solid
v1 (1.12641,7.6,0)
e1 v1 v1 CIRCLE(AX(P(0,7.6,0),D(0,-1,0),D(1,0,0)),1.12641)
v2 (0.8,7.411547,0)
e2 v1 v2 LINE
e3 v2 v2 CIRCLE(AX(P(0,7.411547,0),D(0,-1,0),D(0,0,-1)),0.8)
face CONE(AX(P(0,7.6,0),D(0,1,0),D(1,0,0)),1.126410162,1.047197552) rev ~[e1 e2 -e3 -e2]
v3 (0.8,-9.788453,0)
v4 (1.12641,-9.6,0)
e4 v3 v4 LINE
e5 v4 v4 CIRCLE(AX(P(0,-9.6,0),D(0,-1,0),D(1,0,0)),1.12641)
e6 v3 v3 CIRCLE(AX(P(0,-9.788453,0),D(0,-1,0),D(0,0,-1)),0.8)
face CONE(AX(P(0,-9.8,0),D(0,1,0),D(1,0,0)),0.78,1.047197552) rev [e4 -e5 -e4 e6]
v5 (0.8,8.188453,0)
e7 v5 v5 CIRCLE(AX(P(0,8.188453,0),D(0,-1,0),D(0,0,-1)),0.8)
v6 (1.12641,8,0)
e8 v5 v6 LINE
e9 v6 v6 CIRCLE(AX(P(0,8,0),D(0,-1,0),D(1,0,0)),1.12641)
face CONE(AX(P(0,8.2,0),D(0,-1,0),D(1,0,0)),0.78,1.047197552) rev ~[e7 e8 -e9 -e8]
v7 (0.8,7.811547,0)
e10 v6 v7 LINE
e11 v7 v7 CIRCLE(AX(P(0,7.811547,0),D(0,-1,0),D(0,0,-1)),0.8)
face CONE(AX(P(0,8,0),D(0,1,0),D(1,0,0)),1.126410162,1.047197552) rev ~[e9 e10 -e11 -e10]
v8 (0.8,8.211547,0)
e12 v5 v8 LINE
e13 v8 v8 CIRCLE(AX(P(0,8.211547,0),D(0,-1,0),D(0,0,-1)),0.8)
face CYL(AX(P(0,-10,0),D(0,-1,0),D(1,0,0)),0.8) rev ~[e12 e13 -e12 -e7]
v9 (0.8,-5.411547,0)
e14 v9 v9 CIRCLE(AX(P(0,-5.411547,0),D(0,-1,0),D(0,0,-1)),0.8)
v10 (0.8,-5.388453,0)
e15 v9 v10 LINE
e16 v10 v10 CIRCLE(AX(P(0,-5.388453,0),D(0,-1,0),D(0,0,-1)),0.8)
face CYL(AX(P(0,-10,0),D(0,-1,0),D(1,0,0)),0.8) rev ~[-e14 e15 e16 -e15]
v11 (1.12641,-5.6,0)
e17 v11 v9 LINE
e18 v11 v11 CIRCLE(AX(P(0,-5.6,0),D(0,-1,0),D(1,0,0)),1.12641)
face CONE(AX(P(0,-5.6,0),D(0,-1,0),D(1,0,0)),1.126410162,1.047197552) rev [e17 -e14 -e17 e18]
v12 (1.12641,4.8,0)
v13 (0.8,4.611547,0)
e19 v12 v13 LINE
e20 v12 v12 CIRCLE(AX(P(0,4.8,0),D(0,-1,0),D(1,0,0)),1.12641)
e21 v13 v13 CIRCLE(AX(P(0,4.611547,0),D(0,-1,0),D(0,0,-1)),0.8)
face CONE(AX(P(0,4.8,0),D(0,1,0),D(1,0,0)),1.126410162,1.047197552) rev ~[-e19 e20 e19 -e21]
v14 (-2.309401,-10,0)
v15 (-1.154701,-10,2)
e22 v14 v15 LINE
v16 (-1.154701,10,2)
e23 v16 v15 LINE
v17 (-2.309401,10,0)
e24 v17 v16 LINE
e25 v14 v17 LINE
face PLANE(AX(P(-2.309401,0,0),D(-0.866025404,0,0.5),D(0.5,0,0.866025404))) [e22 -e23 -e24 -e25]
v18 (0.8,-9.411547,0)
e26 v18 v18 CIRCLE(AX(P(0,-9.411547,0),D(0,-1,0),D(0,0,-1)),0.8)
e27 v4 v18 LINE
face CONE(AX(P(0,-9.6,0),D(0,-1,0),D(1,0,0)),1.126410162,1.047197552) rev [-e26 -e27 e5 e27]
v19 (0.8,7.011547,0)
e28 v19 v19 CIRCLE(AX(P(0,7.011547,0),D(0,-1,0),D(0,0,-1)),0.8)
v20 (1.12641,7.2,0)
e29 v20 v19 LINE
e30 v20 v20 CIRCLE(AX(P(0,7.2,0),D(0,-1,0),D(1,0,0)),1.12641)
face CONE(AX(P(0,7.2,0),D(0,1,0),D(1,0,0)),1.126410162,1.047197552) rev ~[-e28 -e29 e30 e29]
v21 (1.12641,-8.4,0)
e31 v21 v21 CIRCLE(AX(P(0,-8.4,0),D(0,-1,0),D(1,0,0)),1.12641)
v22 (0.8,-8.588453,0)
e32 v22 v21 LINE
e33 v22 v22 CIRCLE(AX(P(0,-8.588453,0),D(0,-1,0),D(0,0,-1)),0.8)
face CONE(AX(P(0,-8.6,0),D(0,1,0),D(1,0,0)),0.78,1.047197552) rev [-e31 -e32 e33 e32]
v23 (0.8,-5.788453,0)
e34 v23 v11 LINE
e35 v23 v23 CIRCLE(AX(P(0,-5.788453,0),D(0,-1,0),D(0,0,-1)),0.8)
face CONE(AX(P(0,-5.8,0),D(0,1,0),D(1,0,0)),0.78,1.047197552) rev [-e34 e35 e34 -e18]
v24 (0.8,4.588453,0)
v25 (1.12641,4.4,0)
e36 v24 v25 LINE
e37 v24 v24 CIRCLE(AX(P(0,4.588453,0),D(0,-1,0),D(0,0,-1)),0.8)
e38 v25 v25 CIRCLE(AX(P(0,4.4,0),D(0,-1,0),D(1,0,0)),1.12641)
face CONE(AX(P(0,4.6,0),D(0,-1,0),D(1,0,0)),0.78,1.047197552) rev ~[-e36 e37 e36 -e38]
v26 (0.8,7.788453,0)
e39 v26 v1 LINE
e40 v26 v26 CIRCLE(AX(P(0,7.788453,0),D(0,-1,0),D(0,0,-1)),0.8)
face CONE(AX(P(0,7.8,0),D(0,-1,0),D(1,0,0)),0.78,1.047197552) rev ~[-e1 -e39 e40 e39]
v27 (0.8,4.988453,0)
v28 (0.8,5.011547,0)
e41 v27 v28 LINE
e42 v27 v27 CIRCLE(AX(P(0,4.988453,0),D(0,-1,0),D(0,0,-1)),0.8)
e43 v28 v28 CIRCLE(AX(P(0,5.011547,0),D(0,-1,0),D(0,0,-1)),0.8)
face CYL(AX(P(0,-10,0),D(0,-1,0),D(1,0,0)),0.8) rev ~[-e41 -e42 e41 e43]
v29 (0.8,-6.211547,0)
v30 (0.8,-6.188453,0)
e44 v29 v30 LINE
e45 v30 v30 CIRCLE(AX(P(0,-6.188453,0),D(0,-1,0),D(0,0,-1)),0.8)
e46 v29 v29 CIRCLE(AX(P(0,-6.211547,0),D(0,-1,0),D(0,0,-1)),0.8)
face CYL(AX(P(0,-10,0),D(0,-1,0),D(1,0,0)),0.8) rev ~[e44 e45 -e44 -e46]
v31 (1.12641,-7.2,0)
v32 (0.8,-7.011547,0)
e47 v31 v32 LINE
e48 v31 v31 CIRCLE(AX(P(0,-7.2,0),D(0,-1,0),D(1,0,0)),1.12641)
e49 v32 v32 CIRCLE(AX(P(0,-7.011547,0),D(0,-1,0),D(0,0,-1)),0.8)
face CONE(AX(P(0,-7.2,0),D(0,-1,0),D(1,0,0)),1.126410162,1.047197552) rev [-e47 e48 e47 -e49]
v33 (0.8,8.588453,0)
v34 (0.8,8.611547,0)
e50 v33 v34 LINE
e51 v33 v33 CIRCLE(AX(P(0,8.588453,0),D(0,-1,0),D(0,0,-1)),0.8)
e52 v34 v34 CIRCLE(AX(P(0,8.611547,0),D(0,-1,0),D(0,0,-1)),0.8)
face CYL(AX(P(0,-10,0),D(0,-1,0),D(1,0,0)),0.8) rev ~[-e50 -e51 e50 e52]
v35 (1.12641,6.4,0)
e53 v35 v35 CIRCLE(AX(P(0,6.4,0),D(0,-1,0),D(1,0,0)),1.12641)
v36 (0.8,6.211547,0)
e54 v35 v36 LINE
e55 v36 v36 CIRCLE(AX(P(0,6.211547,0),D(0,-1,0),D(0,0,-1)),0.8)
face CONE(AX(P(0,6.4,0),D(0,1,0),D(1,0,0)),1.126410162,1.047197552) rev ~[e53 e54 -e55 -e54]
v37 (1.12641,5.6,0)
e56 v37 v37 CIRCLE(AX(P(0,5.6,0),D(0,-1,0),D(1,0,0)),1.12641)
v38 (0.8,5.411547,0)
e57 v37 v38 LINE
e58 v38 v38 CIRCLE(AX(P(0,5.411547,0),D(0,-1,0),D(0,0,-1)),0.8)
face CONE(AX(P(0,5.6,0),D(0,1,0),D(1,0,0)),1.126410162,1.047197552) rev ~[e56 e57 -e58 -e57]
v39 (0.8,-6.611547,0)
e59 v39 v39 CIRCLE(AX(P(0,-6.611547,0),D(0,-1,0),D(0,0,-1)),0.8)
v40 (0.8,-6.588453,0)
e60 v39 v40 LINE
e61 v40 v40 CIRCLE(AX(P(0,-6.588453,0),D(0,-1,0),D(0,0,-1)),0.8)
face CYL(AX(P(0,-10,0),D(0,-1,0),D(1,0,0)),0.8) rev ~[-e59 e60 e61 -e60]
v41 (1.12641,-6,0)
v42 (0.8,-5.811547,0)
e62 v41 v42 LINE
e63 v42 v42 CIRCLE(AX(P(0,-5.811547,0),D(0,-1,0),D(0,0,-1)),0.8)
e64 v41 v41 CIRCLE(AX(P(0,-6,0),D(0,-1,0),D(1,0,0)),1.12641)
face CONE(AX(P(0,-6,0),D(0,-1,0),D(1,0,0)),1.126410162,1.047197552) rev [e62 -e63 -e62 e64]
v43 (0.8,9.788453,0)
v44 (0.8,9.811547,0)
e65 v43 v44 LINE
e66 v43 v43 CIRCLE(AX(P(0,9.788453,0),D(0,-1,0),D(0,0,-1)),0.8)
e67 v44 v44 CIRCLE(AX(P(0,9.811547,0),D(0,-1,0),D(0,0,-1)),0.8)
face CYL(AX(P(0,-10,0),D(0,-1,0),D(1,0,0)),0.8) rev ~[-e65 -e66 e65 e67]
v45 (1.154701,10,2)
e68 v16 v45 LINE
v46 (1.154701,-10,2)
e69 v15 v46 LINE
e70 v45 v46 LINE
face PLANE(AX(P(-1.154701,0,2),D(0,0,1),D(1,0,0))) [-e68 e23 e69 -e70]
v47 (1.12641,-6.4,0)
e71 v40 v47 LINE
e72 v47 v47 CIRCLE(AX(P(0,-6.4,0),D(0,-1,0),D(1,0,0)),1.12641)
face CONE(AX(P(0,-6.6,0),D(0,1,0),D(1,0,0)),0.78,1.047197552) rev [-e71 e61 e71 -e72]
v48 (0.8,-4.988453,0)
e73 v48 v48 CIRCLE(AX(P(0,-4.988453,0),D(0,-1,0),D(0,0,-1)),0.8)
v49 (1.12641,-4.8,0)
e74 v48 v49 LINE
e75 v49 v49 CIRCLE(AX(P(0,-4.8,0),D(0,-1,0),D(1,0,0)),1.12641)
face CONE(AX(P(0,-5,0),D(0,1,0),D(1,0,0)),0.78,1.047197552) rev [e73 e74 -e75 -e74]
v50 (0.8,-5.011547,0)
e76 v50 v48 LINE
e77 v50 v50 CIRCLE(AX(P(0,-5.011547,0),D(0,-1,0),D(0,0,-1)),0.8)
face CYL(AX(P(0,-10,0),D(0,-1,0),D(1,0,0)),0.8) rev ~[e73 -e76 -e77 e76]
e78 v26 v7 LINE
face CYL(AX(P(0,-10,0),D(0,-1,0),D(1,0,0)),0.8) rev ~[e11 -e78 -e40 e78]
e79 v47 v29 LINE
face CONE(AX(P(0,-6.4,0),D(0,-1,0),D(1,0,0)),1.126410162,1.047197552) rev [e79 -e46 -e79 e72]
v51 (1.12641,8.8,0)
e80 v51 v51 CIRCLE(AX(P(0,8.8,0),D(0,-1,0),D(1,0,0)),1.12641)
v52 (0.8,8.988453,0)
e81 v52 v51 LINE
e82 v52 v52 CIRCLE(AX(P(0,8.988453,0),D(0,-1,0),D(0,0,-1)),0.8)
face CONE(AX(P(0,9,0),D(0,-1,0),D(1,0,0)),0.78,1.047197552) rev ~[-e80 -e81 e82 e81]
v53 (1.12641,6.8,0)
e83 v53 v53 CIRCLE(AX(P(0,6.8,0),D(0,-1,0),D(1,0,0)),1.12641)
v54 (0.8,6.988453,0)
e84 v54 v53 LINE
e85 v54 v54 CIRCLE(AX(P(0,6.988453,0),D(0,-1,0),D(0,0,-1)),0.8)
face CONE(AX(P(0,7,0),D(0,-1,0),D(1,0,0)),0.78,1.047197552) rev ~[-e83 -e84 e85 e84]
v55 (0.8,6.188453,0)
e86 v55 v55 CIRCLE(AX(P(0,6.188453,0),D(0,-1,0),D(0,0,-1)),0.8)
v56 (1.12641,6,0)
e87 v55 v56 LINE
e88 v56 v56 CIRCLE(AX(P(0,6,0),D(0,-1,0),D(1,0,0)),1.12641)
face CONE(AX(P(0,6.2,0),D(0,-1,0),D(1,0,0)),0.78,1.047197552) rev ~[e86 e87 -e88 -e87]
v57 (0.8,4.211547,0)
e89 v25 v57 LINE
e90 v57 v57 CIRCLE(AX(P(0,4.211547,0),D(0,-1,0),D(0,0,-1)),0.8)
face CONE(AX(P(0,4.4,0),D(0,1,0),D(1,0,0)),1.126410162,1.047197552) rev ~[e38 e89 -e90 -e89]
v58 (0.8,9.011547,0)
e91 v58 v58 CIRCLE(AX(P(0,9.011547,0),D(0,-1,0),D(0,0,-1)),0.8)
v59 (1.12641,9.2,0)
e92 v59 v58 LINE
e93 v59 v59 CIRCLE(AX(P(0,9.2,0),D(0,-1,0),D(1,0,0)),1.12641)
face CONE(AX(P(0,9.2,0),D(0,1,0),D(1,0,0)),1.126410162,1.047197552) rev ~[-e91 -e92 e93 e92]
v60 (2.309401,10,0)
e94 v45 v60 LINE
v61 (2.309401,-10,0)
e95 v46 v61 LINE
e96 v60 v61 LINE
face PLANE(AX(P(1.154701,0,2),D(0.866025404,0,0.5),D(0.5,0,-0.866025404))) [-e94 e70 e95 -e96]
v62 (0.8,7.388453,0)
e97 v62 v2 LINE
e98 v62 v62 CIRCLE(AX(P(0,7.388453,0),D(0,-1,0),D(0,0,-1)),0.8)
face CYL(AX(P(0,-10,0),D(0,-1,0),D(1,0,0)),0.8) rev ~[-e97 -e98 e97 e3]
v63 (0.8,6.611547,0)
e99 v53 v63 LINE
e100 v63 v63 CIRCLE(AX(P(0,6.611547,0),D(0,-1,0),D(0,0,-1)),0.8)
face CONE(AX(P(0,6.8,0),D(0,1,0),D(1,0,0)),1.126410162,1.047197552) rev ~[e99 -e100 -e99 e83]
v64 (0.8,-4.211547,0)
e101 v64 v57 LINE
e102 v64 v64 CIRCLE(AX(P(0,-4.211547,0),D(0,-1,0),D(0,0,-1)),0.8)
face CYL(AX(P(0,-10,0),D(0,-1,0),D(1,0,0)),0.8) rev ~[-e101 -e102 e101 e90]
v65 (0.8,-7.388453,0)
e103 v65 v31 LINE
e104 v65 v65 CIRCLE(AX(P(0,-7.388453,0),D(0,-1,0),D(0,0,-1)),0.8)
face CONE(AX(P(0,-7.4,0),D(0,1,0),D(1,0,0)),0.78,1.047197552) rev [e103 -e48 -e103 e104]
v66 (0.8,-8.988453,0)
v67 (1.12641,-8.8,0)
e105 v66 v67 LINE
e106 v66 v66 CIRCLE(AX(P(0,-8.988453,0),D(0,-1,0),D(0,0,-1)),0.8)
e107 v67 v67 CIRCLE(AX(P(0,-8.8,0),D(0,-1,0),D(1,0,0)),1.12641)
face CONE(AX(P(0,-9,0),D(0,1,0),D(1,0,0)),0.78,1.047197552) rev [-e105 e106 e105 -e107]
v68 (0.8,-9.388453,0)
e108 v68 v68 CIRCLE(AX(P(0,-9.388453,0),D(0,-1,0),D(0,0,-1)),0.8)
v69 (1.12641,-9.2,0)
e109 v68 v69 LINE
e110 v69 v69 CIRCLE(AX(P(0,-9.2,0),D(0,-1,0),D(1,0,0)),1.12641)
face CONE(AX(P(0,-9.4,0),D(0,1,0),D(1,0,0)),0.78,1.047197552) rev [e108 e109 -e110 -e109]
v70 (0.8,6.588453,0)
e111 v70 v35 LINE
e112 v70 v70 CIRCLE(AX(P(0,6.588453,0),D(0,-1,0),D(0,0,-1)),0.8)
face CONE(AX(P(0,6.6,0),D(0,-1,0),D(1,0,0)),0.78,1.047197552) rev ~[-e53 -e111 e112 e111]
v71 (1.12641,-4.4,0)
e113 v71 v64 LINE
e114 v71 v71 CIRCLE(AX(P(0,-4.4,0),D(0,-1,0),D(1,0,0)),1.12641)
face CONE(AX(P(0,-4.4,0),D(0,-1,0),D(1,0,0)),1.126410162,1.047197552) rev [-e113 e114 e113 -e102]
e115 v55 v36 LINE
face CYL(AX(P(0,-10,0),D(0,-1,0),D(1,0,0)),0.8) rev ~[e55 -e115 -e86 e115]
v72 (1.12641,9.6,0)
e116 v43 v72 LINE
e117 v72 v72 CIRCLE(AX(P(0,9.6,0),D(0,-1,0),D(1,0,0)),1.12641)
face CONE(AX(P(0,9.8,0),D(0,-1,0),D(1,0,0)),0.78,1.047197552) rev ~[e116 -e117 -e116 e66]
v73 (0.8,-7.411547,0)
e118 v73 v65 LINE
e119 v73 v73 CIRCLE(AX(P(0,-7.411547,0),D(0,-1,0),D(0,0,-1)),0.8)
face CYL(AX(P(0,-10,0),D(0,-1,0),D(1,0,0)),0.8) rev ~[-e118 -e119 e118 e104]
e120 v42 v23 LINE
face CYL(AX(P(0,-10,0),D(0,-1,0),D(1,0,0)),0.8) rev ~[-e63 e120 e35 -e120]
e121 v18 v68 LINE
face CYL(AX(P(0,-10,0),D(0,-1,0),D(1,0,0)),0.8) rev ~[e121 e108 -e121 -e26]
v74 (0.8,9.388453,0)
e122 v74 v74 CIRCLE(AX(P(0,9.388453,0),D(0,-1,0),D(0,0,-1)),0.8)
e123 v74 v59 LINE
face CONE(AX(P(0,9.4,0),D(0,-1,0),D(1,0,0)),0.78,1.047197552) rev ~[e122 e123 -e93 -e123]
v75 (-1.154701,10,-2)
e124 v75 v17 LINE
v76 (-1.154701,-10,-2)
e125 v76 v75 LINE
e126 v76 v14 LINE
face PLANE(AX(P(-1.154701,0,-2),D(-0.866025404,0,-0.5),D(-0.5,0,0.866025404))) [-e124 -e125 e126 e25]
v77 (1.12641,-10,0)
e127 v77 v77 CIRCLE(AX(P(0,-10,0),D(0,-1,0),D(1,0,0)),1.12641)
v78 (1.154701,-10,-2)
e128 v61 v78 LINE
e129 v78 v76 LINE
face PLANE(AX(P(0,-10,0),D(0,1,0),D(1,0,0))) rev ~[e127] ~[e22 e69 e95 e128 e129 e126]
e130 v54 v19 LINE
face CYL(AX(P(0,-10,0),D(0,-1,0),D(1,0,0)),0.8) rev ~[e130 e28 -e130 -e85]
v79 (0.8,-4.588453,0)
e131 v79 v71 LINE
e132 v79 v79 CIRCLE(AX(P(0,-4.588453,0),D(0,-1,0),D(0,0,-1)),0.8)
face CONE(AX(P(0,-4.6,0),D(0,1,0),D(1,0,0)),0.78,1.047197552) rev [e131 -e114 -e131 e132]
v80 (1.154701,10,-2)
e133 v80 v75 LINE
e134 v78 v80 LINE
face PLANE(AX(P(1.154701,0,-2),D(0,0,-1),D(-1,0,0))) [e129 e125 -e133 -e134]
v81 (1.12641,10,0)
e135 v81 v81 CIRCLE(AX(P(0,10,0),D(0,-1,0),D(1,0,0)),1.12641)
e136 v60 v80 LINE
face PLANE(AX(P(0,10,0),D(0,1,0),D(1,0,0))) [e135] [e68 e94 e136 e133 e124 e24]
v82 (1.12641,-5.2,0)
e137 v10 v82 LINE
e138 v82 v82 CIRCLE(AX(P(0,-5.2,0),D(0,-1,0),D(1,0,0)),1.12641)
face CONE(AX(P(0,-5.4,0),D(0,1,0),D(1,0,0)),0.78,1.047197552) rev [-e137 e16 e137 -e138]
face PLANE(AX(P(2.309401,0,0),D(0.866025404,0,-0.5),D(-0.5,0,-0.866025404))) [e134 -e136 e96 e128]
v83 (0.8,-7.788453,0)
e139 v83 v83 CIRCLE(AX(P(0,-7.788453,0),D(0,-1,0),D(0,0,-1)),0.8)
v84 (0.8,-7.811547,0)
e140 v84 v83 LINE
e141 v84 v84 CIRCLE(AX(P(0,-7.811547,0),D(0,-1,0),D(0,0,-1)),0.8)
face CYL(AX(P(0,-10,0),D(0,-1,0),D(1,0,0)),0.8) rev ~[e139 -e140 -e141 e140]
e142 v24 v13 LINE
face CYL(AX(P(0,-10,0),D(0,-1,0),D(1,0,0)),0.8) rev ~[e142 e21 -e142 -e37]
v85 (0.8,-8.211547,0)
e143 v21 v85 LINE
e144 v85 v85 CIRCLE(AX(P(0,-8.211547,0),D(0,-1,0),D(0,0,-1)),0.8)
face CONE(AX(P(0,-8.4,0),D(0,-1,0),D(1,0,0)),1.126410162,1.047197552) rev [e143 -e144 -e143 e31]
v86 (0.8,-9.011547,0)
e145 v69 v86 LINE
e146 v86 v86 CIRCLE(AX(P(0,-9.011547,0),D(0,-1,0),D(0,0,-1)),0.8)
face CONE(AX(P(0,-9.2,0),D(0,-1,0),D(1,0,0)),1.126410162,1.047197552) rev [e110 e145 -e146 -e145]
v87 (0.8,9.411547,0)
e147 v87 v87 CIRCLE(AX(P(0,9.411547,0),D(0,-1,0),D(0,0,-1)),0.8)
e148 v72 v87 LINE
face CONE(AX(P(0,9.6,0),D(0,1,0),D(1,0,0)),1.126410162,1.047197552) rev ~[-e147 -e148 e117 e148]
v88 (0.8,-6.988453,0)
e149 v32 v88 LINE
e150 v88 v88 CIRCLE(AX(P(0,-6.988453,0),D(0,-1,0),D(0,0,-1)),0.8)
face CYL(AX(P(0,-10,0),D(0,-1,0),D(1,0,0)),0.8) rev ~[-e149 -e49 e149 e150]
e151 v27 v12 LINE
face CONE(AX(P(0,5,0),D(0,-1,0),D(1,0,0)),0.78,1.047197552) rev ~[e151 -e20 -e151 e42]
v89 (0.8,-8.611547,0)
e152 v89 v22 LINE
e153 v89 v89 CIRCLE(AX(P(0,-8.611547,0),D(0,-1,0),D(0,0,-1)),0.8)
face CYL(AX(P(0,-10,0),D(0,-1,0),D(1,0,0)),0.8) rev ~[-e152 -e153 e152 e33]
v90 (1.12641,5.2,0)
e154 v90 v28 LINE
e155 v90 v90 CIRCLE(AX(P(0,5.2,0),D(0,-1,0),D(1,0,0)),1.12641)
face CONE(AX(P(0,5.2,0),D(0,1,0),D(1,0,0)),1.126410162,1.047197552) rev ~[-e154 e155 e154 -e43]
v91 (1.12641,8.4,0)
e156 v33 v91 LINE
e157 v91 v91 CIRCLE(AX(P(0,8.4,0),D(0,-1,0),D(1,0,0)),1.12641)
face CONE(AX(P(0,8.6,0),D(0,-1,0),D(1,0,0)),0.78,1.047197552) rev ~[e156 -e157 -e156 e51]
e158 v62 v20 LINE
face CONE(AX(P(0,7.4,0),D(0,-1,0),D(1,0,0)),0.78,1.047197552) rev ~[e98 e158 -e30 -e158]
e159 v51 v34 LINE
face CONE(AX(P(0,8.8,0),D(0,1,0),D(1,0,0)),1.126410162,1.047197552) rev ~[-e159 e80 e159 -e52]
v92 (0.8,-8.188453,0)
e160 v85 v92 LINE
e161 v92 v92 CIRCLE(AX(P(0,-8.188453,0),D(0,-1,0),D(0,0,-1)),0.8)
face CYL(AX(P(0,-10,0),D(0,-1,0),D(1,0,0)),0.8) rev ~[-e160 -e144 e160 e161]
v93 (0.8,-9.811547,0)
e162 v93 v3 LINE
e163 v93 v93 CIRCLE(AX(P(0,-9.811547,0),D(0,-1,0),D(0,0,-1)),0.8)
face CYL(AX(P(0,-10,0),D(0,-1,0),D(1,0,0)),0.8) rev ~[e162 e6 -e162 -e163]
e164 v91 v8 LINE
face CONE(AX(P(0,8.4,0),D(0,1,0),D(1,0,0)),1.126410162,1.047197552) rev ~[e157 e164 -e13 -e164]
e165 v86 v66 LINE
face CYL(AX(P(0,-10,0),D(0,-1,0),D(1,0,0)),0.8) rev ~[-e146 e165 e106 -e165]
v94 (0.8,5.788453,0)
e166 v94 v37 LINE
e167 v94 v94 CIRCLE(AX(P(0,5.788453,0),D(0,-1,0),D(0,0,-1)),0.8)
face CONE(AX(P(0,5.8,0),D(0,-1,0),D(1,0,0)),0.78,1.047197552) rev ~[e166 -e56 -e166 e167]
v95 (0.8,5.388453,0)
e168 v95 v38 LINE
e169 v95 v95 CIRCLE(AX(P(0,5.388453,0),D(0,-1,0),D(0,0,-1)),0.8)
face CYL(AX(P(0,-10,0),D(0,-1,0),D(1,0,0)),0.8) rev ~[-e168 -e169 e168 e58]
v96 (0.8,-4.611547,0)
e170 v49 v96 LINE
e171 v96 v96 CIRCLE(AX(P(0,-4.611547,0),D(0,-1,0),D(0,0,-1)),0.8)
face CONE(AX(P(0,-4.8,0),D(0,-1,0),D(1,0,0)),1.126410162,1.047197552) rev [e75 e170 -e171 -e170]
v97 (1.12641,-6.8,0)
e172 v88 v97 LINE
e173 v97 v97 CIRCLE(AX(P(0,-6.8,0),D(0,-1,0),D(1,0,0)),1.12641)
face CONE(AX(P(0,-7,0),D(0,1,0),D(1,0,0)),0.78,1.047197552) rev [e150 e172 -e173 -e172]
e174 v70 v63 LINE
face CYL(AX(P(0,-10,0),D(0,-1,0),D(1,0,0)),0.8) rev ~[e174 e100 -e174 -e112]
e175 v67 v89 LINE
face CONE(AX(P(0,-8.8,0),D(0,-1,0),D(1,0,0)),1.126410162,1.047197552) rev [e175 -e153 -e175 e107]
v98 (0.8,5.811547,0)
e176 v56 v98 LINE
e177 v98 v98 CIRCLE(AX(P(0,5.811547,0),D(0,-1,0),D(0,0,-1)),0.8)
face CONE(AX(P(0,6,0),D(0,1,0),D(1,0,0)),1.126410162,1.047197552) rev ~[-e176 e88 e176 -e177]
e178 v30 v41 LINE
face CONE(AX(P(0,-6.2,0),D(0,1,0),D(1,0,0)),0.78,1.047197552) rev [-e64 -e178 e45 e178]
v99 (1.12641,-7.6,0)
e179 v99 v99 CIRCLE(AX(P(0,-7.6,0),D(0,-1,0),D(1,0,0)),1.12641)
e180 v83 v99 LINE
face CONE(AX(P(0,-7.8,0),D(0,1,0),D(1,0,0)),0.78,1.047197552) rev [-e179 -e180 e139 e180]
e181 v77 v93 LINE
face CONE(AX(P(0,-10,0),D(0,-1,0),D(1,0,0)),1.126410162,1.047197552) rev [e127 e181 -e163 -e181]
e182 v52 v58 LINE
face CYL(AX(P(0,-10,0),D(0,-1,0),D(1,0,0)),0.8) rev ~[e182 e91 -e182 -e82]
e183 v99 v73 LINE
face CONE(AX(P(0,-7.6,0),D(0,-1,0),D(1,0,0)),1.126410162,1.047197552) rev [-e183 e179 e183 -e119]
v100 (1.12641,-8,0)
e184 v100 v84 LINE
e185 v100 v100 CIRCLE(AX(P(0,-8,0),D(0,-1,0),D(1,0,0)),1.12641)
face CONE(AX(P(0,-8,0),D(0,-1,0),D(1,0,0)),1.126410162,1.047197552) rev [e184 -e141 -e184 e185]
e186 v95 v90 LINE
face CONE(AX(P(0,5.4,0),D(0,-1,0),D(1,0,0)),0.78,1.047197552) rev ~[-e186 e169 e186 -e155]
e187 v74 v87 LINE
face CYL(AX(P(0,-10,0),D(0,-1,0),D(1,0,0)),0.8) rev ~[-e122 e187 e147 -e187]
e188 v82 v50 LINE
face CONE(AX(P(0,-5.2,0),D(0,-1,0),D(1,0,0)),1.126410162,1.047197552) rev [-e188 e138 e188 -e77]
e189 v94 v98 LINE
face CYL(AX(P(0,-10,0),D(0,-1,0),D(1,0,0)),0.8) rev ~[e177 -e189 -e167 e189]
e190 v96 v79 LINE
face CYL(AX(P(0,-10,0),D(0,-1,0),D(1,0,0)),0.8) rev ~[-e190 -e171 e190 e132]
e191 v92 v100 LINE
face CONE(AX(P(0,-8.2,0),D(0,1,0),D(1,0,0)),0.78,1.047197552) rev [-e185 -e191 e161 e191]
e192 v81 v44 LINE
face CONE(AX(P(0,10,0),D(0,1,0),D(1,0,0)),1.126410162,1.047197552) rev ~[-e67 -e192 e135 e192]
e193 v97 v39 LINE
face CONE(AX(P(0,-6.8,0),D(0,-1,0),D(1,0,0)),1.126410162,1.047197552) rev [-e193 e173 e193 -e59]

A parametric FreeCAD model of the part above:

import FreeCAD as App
import Part
import Sketcher

V = App.Vector
Q = App.Units.Quantity

doc = App.newDocument("Part")
body = doc.addObject("PartDesign::Body", "Body")

# Sketch on XZ plane
sketch1 = doc.addObject("Sketcher::SketchObject", "Sketch")
body.addObject(sketch1)
sketch1.AttachmentSupport = (doc.XZ_Plane, [""])
sketch1.MapMode = "FlatFace"
sketch1.addGeometry(Part.LineSegment(V(2.309401, 0, 0), V(1.154701, -2, 0)), False)
sketch1.addGeometry(Part.LineSegment(V(1.154701, -2, 0), V(-1.154701, -2, 0)), False)
sketch1.addGeometry(Part.LineSegment(V(-1.154701, -2, 0), V(-2.309401, 0, 0)), False)
sketch1.addGeometry(Part.LineSegment(V(-2.309401, 0, 0), V(-1.154701, 2, 0)), False)
sketch1.addGeometry(Part.LineSegment(V(-1.154701, 2, 0), V(1.154701, 2, 0)), False)
sketch1.addGeometry(Part.LineSegment(V(1.154701, 2, 0), V(2.309401, 0, 0)), False)
sketch1.addConstraint(Sketcher.Constraint("Coincident", 0, 2, 1, 1))
sketch1.addConstraint(Sketcher.Constraint("Coincident", 1, 2, 2, 1))
sketch1.addConstraint(Sketcher.Constraint("Coincident", 2, 2, 3, 1))
sketch1.addConstraint(Sketcher.Constraint("Coincident", 3, 2, 4, 1))
sketch1.addConstraint(Sketcher.Constraint("Coincident", 4, 2, 5, 1))
sketch1.addConstraint(Sketcher.Constraint("Coincident", 5, 2, 0, 1))
sketch1.addConstraint(Sketcher.Constraint("Horizontal", 1))
sketch1.addConstraint(Sketcher.Constraint("Horizontal", 4))
sketch1.addConstraint(Sketcher.Constraint("Symmetric", 0, 2, 3, 2, -1, 1))
sketch1.addConstraint(Sketcher.Constraint("Symmetric", 2, 2, 5, 2, -1, 1))
sketch1.addConstraint(Sketcher.Constraint("PointOnObject", 2, 2, -1))
sketch1.addConstraint(Sketcher.Constraint("Parallel", 2, 5))
sketch1.addConstraint(Sketcher.Constraint("Vertical", 1, 2, 3, 2))
sketch1.addConstraint(Sketcher.Constraint("Angle", 0, Q("-120 deg")))
sketch1.addConstraint(Sketcher.Constraint("DistanceY", 0, 2, -1, 1, Q("2 mm")))
sketch1.addConstraint(Sketcher.Constraint("DistanceX", 1, 2, 1, 1, Q("2.309401 mm")))
pad1 = doc.addObject("PartDesign::Pad", "Pad")
body.addObject(pad1)
pad1.Profile = sketch1
pad1.Length = 20
pad1.Midplane = True

# Sketch on XZ plane
sketch2 = doc.addObject("Sketcher::SketchObject", "Sketch001")
body.addObject(sketch2)
sketch2.AttachmentSupport = (doc.XZ_Plane, [""])
sketch2.MapMode = "FlatFace"
sketch2.AttachmentOffset = App.Placement(V(0, 0, 10), App.Rotation())
sketch2.addGeometry(Part.Circle(V(0, 0, 0), V(0, 0, 1), 0.8), False)
sketch2.addConstraint(Sketcher.Constraint("Coincident", 0, 3, -1, 1))
sketch2.addConstraint(Sketcher.Constraint("Diameter", 0, Q("1.6 mm")))
pocket1 = doc.addObject("PartDesign::Pocket", "Pocket")
body.addObject(pocket1)
pocket1.Profile = sketch2
pocket1.Length = 20

# Sketch on XY plane
sketch3 = doc.addObject("Sketcher::SketchObject", "Sketch002")
body.addObject(sketch3)
sketch3.AttachmentSupport = (doc.XY_Plane, [""])
sketch3.MapMode = "FlatFace"
sketch3.addGeometry(Part.LineSegment(V(0.38, -9.8, 0), V(0.38, -10.2, 0)), False)
sketch3.addGeometry(Part.LineSegment(V(0.38, -10.2, 0), V(0.78, -10.2, 0)), False)
sketch3.addGeometry(Part.LineSegment(V(0.78, -10.2, 0), V(1.12641, -10, 0)), False)
sketch3.addGeometry(Part.LineSegment(V(1.12641, -10, 0), V(0.78, -9.8, 0)), False)
sketch3.addGeometry(Part.LineSegment(V(0.78, -9.8, 0), V(0.38, -9.8, 0)), False)
sketch3.addConstraint(Sketcher.Constraint("Coincident", 0, 2, 1, 1))
sketch3.addConstraint(Sketcher.Constraint("Coincident", 1, 2, 2, 1))
sketch3.addConstraint(Sketcher.Constraint("Coincident", 2, 2, 3, 1))
sketch3.addConstraint(Sketcher.Constraint("Coincident", 3, 2, 4, 1))
sketch3.addConstraint(Sketcher.Constraint("Coincident", 4, 2, 0, 1))
sketch3.addConstraint(Sketcher.Constraint("Vertical", 0))
sketch3.addConstraint(Sketcher.Constraint("Horizontal", 1))
sketch3.addConstraint(Sketcher.Constraint("Horizontal", 4))
sketch3.addConstraint(Sketcher.Constraint("Vertical", 1, 2, 3, 2))
sketch3.addConstraint(Sketcher.Constraint("Equal", 4, 0))
sketch3.addConstraint(Sketcher.Constraint("Equal", 2, 3))
sketch3.addConstraint(Sketcher.Constraint("Angle", 2, Q("30 deg")))
sketch3.addConstraint(Sketcher.Constraint("DistanceX", 1, 1, 1, 2, Q("0.4 mm")))
sketch3.addConstraint(Sketcher.Constraint("DistanceY", 2, 2, -1, 1, Q("10 mm")))
sketch3.addConstraint(Sketcher.Constraint("DistanceX", -1, 1, 0, 2, Q("0.38 mm")))
groove = doc.addObject("PartDesign::Groove", "Groove")
body.addObject(groove)
groove.Profile = sketch3
groove.ReferenceAxis = (sketch3, ["V_Axis"])
groove.Angle = 360
doc.recompute()

linearpattern = doc.addObject("PartDesign::LinearPattern", "LinearPattern")
body.addObject(linearpattern)
linearpattern.Originals = [groove]
linearpattern.Direction = (doc.Y_Axis, [""])
linearpattern.Mode = "offset"
linearpattern.Offset = 0.4
linearpattern.Occurrences = 15
body.Tip = linearpattern
doc.recompute()

mirrored = doc.addObject("PartDesign::Mirrored", "Mirrored")
body.addObject(mirrored)
mirrored.Originals = [groove]
mirrored.MirrorPlane = (doc.XZ_Plane, [""])
body.Tip = mirrored

# Sketch on XY plane
sketch4 = doc.addObject("Sketcher::SketchObject", "Sketch003")
body.addObject(sketch4)
sketch4.AttachmentSupport = (doc.XY_Plane, [""])
sketch4.MapMode = "FlatFace"
sketch4.addGeometry(Part.LineSegment(V(0.38, 9.8, 0), V(0.38, 9.4, 0)), False)
sketch4.addGeometry(Part.LineSegment(V(0.38, 9.4, 0), V(0.78, 9.4, 0)), False)
sketch4.addGeometry(Part.LineSegment(V(0.78, 9.4, 0), V(1.12641, 9.6, 0)), False)
sketch4.addGeometry(Part.LineSegment(V(1.12641, 9.6, 0), V(0.78, 9.8, 0)), False)
sketch4.addGeometry(Part.LineSegment(V(0.78, 9.8, 0), V(0.38, 9.8, 0)), False)
sketch4.addConstraint(Sketcher.Constraint("Coincident", 0, 2, 1, 1))
sketch4.addConstraint(Sketcher.Constraint("Coincident", 1, 2, 2, 1))
sketch4.addConstraint(Sketcher.Constraint("Coincident", 2, 2, 3, 1))
sketch4.addConstraint(Sketcher.Constraint("Coincident", 3, 2, 4, 1))
sketch4.addConstraint(Sketcher.Constraint("Coincident", 4, 2, 0, 1))
sketch4.addConstraint(Sketcher.Constraint("Vertical", 0))
sketch4.addConstraint(Sketcher.Constraint("Horizontal", 1))
sketch4.addConstraint(Sketcher.Constraint("Horizontal", 4))
sketch4.addConstraint(Sketcher.Constraint("Vertical", 1, 2, 3, 2))
sketch4.addConstraint(Sketcher.Constraint("Equal", 4, 0))
sketch4.addConstraint(Sketcher.Constraint("Equal", 2, 3))
sketch4.addConstraint(Sketcher.Constraint("Angle", 2, Q("30 deg")))
sketch4.addConstraint(Sketcher.Constraint("DistanceX", 1, 1, 1, 2, Q("0.4 mm")))
sketch4.addConstraint(Sketcher.Constraint("DistanceY", -1, 1, 0, 2, Q("9.4 mm")))
sketch4.addConstraint(Sketcher.Constraint("DistanceX", -1, 1, 0, 2, Q("0.38 mm")))
groove2 = doc.addObject("PartDesign::Groove", "Groove001")
body.addObject(groove2)
groove2.Profile = sketch4
groove2.ReferenceAxis = (sketch4, ["V_Axis"])
groove2.Angle = 360

# Sketch on XY plane
sketch5 = doc.addObject("Sketcher::SketchObject", "Sketch004")
body.addObject(sketch5)
sketch5.AttachmentSupport = (doc.XY_Plane, [""])
sketch5.MapMode = "FlatFace"
sketch5.addGeometry(Part.LineSegment(V(0.38, 9.4, 0), V(0.38, 9, 0)), False)
sketch5.addGeometry(Part.LineSegment(V(0.38, 9, 0), V(0.78, 9, 0)), False)
sketch5.addGeometry(Part.LineSegment(V(0.78, 9, 0), V(1.12641, 9.2, 0)), False)
sketch5.addGeometry(Part.LineSegment(V(1.12641, 9.2, 0), V(0.78, 9.4, 0)), False)
sketch5.addGeometry(Part.LineSegment(V(0.78, 9.4, 0), V(0.38, 9.4, 0)), False)
sketch5.addConstraint(Sketcher.Constraint("Coincident", 0, 2, 1, 1))
sketch5.addConstraint(Sketcher.Constraint("Coincident", 1, 2, 2, 1))
sketch5.addConstraint(Sketcher.Constraint("Coincident", 2, 2, 3, 1))
sketch5.addConstraint(Sketcher.Constraint("Coincident", 3, 2, 4, 1))
sketch5.addConstraint(Sketcher.Constraint("Coincident", 4, 2, 0, 1))
sketch5.addConstraint(Sketcher.Constraint("Vertical", 0))
sketch5.addConstraint(Sketcher.Constraint("Horizontal", 1))
sketch5.addConstraint(Sketcher.Constraint("Horizontal", 4))
sketch5.addConstraint(Sketcher.Constraint("Vertical", 1, 2, 3, 2))
sketch5.addConstraint(Sketcher.Constraint("Equal", 4, 0))
sketch5.addConstraint(Sketcher.Constraint("Equal", 2, 3))
sketch5.addConstraint(Sketcher.Constraint("Angle", 2, Q("30 deg")))
sketch5.addConstraint(Sketcher.Constraint("DistanceX", 1, 1, 1, 2, Q("0.4 mm")))
sketch5.addConstraint(Sketcher.Constraint("DistanceY", -1, 1, 0, 2, Q("9 mm")))
sketch5.addConstraint(Sketcher.Constraint("DistanceX", -1, 1, 0, 2, Q("0.38 mm")))
groove3 = doc.addObject("PartDesign::Groove", "Groove002")
body.addObject(groove3)
groove3.Profile = sketch5
groove3.ReferenceAxis = (sketch5, ["V_Axis"])
groove3.Angle = 360

# Sketch on XY plane
sketch6 = doc.addObject("Sketcher::SketchObject", "Sketch005")
body.addObject(sketch6)
sketch6.AttachmentSupport = (doc.XY_Plane, [""])
sketch6.MapMode = "FlatFace"
sketch6.addGeometry(Part.LineSegment(V(0.38, 9, 0), V(0.38, 8.6, 0)), False)
sketch6.addGeometry(Part.LineSegment(V(0.38, 8.6, 0), V(0.78, 8.6, 0)), False)
sketch6.addGeometry(Part.LineSegment(V(0.78, 8.6, 0), V(1.12641, 8.8, 0)), False)
sketch6.addGeometry(Part.LineSegment(V(1.12641, 8.8, 0), V(0.78, 9, 0)), False)
sketch6.addGeometry(Part.LineSegment(V(0.78, 9, 0), V(0.38, 9, 0)), False)
sketch6.addConstraint(Sketcher.Constraint("Coincident", 0, 2, 1, 1))
sketch6.addConstraint(Sketcher.Constraint("Coincident", 1, 2, 2, 1))
sketch6.addConstraint(Sketcher.Constraint("Coincident", 2, 2, 3, 1))
sketch6.addConstraint(Sketcher.Constraint("Coincident", 3, 2, 4, 1))
sketch6.addConstraint(Sketcher.Constraint("Coincident", 4, 2, 0, 1))
sketch6.addConstraint(Sketcher.Constraint("Vertical", 0))
sketch6.addConstraint(Sketcher.Constraint("Horizontal", 1))
sketch6.addConstraint(Sketcher.Constraint("Horizontal", 4))
sketch6.addConstraint(Sketcher.Constraint("Vertical", 1, 2, 3, 2))
sketch6.addConstraint(Sketcher.Constraint("Equal", 4, 0))
sketch6.addConstraint(Sketcher.Constraint("Equal", 2, 3))
sketch6.addConstraint(Sketcher.Constraint("Angle", 2, Q("30 deg")))
sketch6.addConstraint(Sketcher.Constraint("DistanceX", 1, 1, 1, 2, Q("0.4 mm")))
sketch6.addConstraint(Sketcher.Constraint("DistanceY", -1, 1, 3, 2, Q("9 mm")))
sketch6.addConstraint(Sketcher.Constraint("DistanceX", -1, 1, 0, 2, Q("0.38 mm")))
groove4 = doc.addObject("PartDesign::Groove", "Groove003")
body.addObject(groove4)
groove4.Profile = sketch6
groove4.ReferenceAxis = (sketch6, ["V_Axis"])
groove4.Angle = 360

# Sketch on XY plane
sketch7 = doc.addObject("Sketcher::SketchObject", "Sketch006")
body.addObject(sketch7)
sketch7.AttachmentSupport = (doc.XY_Plane, [""])
sketch7.MapMode = "FlatFace"
sketch7.addGeometry(Part.LineSegment(V(0.38, 8.6, 0), V(0.38, 8.2, 0)), False)
sketch7.addGeometry(Part.LineSegment(V(0.38, 8.2, 0), V(0.78, 8.2, 0)), False)
sketch7.addGeometry(Part.LineSegment(V(0.78, 8.2, 0), V(1.12641, 8.4, 0)), False)
sketch7.addGeometry(Part.LineSegment(V(1.12641, 8.4, 0), V(0.78, 8.6, 0)), False)
sketch7.addGeometry(Part.LineSegment(V(0.78, 8.6, 0), V(0.38, 8.6, 0)), False)
sketch7.addConstraint(Sketcher.Constraint("Coincident", 0, 2, 1, 1))
sketch7.addConstraint(Sketcher.Constraint("Coincident", 1, 2, 2, 1))
sketch7.addConstraint(Sketcher.Constraint("Coincident", 2, 2, 3, 1))
sketch7.addConstraint(Sketcher.Constraint("Coincident", 3, 2, 4, 1))
sketch7.addConstraint(Sketcher.Constraint("Coincident", 4, 2, 0, 1))
sketch7.addConstraint(Sketcher.Constraint("Vertical", 0))
sketch7.addConstraint(Sketcher.Constraint("Horizontal", 1))
sketch7.addConstraint(Sketcher.Constraint("Horizontal", 4))
sketch7.addConstraint(Sketcher.Constraint("Vertical", 1, 2, 3, 2))
sketch7.addConstraint(Sketcher.Constraint("Equal", 4, 0))
sketch7.addConstraint(Sketcher.Constraint("Equal", 2, 3))
sketch7.addConstraint(Sketcher.Constraint("Angle", 2, Q("30 deg")))
sketch7.addConstraint(Sketcher.Constraint("DistanceX", 1, 1, 1, 2, Q("0.4 mm")))
sketch7.addConstraint(Sketcher.Constraint("DistanceY", -1, 1, 0, 2, Q("8.2 mm")))
sketch7.addConstraint(Sketcher.Constraint("DistanceX", -1, 1, 0, 2, Q("0.38 mm")))
groove5 = doc.addObject("PartDesign::Groove", "Groove004")
body.addObject(groove5)
groove5.Profile = sketch7
groove5.ReferenceAxis = (sketch7, ["V_Axis"])
groove5.Angle = 360

# Sketch on XY plane
sketch8 = doc.addObject("Sketcher::SketchObject", "Sketch007")
body.addObject(sketch8)
sketch8.AttachmentSupport = (doc.XY_Plane, [""])
sketch8.MapMode = "FlatFace"
sketch8.addGeometry(Part.LineSegment(V(0.38, 8.2, 0), V(0.38, 7.8, 0)), False)
sketch8.addGeometry(Part.LineSegment(V(0.38, 7.8, 0), V(0.78, 7.8, 0)), False)
sketch8.addGeometry(Part.LineSegment(V(0.78, 7.8, 0), V(1.12641, 8, 0)), False)
sketch8.addGeometry(Part.LineSegment(V(1.12641, 8, 0), V(0.78, 8.2, 0)), False)
sketch8.addGeometry(Part.LineSegment(V(0.78, 8.2, 0), V(0.38, 8.2, 0)), False)
sketch8.addConstraint(Sketcher.Constraint("Coincident", 0, 2, 1, 1))
sketch8.addConstraint(Sketcher.Constraint("Coincident", 1, 2, 2, 1))
sketch8.addConstraint(Sketcher.Constraint("Coincident", 2, 2, 3, 1))
sketch8.addConstraint(Sketcher.Constraint("Coincident", 3, 2, 4, 1))
sketch8.addConstraint(Sketcher.Constraint("Coincident", 4, 2, 0, 1))
sketch8.addConstraint(Sketcher.Constraint("Vertical", 0))
sketch8.addConstraint(Sketcher.Constraint("Horizontal", 1))
sketch8.addConstraint(Sketcher.Constraint("Horizontal", 4))
sketch8.addConstraint(Sketcher.Constraint("Vertical", 1, 2, 3, 2))
sketch8.addConstraint(Sketcher.Constraint("Equal", 4, 0))
sketch8.addConstraint(Sketcher.Constraint("Equal", 2, 3))
sketch8.addConstraint(Sketcher.Constraint("Angle", 2, Q("30 deg")))
sketch8.addConstraint(Sketcher.Constraint("DistanceX", 1, 1, 1, 2, Q("0.4 mm")))
sketch8.addConstraint(Sketcher.Constraint("DistanceY", -1, 1, 2, 2, Q("8 mm")))
sketch8.addConstraint(Sketcher.Constraint("DistanceX", -1, 1, 0, 2, Q("0.38 mm")))
groove6 = doc.addObject("PartDesign::Groove", "Groove005")
body.addObject(groove6)
groove6.Profile = sketch8
groove6.ReferenceAxis = (sketch8, ["V_Axis"])
groove6.Angle = 360

# Sketch on XY plane
sketch9 = doc.addObject("Sketcher::SketchObject", "Sketch008")
body.addObject(sketch9)
sketch9.AttachmentSupport = (doc.XY_Plane, [""])
sketch9.MapMode = "FlatFace"
sketch9.addGeometry(Part.LineSegment(V(0.38, 7.8, 0), V(0.38, 7.4, 0)), False)
sketch9.addGeometry(Part.LineSegment(V(0.38, 7.4, 0), V(0.78, 7.4, 0)), False)
sketch9.addGeometry(Part.LineSegment(V(0.78, 7.4, 0), V(1.12641, 7.6, 0)), False)
sketch9.addGeometry(Part.LineSegment(V(1.12641, 7.6, 0), V(0.78, 7.8, 0)), False)
sketch9.addGeometry(Part.LineSegment(V(0.78, 7.8, 0), V(0.38, 7.8, 0)), False)
sketch9.addConstraint(Sketcher.Constraint("Coincident", 0, 2, 1, 1))
sketch9.addConstraint(Sketcher.Constraint("Coincident", 1, 2, 2, 1))
sketch9.addConstraint(Sketcher.Constraint("Coincident", 2, 2, 3, 1))
sketch9.addConstraint(Sketcher.Constraint("Coincident", 3, 2, 4, 1))
sketch9.addConstraint(Sketcher.Constraint("Coincident", 4, 2, 0, 1))
sketch9.addConstraint(Sketcher.Constraint("Vertical", 0))
sketch9.addConstraint(Sketcher.Constraint("Horizontal", 1))
sketch9.addConstraint(Sketcher.Constraint("Horizontal", 4))
sketch9.addConstraint(Sketcher.Constraint("Vertical", 1, 2, 3, 2))
sketch9.addConstraint(Sketcher.Constraint("Equal", 4, 0))
sketch9.addConstraint(Sketcher.Constraint("Equal", 2, 3))
sketch9.addConstraint(Sketcher.Constraint("Angle", 2, Q("30 deg")))
sketch9.addConstraint(Sketcher.Constraint("DistanceX", 1, 1, 1, 2, Q("0.4 mm")))
sketch9.addConstraint(Sketcher.Constraint("DistanceY", -1, 1, 0, 2, Q("7.4 mm")))
sketch9.addConstraint(Sketcher.Constraint("DistanceX", -1, 1, 0, 2, Q("0.38 mm")))
groove7 = doc.addObject("PartDesign::Groove", "Groove006")
body.addObject(groove7)
groove7.Profile = sketch9
groove7.ReferenceAxis = (sketch9, ["V_Axis"])
groove7.Angle = 360

# Sketch on XY plane
sketch10 = doc.addObject("Sketcher::SketchObject", "Sketch009")
body.addObject(sketch10)
sketch10.AttachmentSupport = (doc.XY_Plane, [""])
sketch10.MapMode = "FlatFace"
sketch10.addGeometry(Part.LineSegment(V(0.38, 7.4, 0), V(0.38, 7, 0)), False)
sketch10.addGeometry(Part.LineSegment(V(0.38, 7, 0), V(0.78, 7, 0)), False)
sketch10.addGeometry(Part.LineSegment(V(0.78, 7, 0), V(1.12641, 7.2, 0)), False)
sketch10.addGeometry(Part.LineSegment(V(1.12641, 7.2, 0), V(0.78, 7.4, 0)), False)
sketch10.addGeometry(Part.LineSegment(V(0.78, 7.4, 0), V(0.38, 7.4, 0)), False)
sketch10.addConstraint(Sketcher.Constraint("Coincident", 0, 2, 1, 1))
sketch10.addConstraint(Sketcher.Constraint("Coincident", 1, 2, 2, 1))
sketch10.addConstraint(Sketcher.Constraint("Coincident", 2, 2, 3, 1))
sketch10.addConstraint(Sketcher.Constraint("Coincident", 3, 2, 4, 1))
sketch10.addConstraint(Sketcher.Constraint("Coincident", 4, 2, 0, 1))
sketch10.addConstraint(Sketcher.Constraint("Vertical", 0))
sketch10.addConstraint(Sketcher.Constraint("Horizontal", 1))
sketch10.addConstraint(Sketcher.Constraint("Horizontal", 4))
sketch10.addConstraint(Sketcher.Constraint("Vertical", 1, 2, 3, 2))
sketch10.addConstraint(Sketcher.Constraint("Equal", 4, 0))
sketch10.addConstraint(Sketcher.Constraint("Equal", 2, 3))
sketch10.addConstraint(Sketcher.Constraint("Angle", 2, Q("30 deg")))
sketch10.addConstraint(Sketcher.Constraint("DistanceX", 1, 1, 1, 2, Q("0.4 mm")))
sketch10.addConstraint(Sketcher.Constraint("DistanceY", -1, 1, 0, 2, Q("7 mm")))
sketch10.addConstraint(Sketcher.Constraint("DistanceX", -1, 1, 0, 2, Q("0.38 mm")))
groove8 = doc.addObject("PartDesign::Groove", "Groove007")
body.addObject(groove8)
groove8.Profile = sketch10
groove8.ReferenceAxis = (sketch10, ["V_Axis"])
groove8.Angle = 360

# Sketch on XY plane
sketch11 = doc.addObject("Sketcher::SketchObject", "Sketch010")
body.addObject(sketch11)
sketch11.AttachmentSupport = (doc.XY_Plane, [""])
sketch11.MapMode = "FlatFace"
sketch11.addGeometry(Part.LineSegment(V(0.38, 7, 0), V(0.38, 6.6, 0)), False)
sketch11.addGeometry(Part.LineSegment(V(0.38, 6.6, 0), V(0.78, 6.6, 0)), False)
sketch11.addGeometry(Part.LineSegment(V(0.78, 6.6, 0), V(1.12641, 6.8, 0)), False)
sketch11.addGeometry(Part.LineSegment(V(1.12641, 6.8, 0), V(0.78, 7, 0)), False)
sketch11.addGeometry(Part.LineSegment(V(0.78, 7, 0), V(0.38, 7, 0)), False)
sketch11.addConstraint(Sketcher.Constraint("Coincident", 0, 2, 1, 1))
sketch11.addConstraint(Sketcher.Constraint("Coincident", 1, 2, 2, 1))
sketch11.addConstraint(Sketcher.Constraint("Coincident", 2, 2, 3, 1))
sketch11.addConstraint(Sketcher.Constraint("Coincident", 3, 2, 4, 1))
sketch11.addConstraint(Sketcher.Constraint("Coincident", 4, 2, 0, 1))
sketch11.addConstraint(Sketcher.Constraint("Vertical", 0))
sketch11.addConstraint(Sketcher.Constraint("Horizontal", 1))
sketch11.addConstraint(Sketcher.Constraint("Horizontal", 4))
sketch11.addConstraint(Sketcher.Constraint("Vertical", 1, 2, 3, 2))
sketch11.addConstraint(Sketcher.Constraint("Equal", 4, 0))
sketch11.addConstraint(Sketcher.Constraint("Equal", 2, 3))
sketch11.addConstraint(Sketcher.Constraint("Angle", 2, Q("30 deg")))
sketch11.addConstraint(Sketcher.Constraint("DistanceX", 1, 1, 1, 2, Q("0.4 mm")))
sketch11.addConstraint(Sketcher.Constraint("DistanceY", -1, 1, 3, 2, Q("7 mm")))
sketch11.addConstraint(Sketcher.Constraint("DistanceX", -1, 1, 0, 2, Q("0.38 mm")))
groove9 = doc.addObject("PartDesign::Groove", "Groove008")
body.addObject(groove9)
groove9.Profile = sketch11
groove9.ReferenceAxis = (sketch11, ["V_Axis"])
groove9.Angle = 360

# Sketch on XY plane
sketch12 = doc.addObject("Sketcher::SketchObject", "Sketch011")
body.addObject(sketch12)
sketch12.AttachmentSupport = (doc.XY_Plane, [""])
sketch12.MapMode = "FlatFace"
sketch12.addGeometry(Part.LineSegment(V(0.38, 6.6, 0), V(0.38, 6.2, 0)), False)
sketch12.addGeometry(Part.LineSegment(V(0.38, 6.2, 0), V(0.78, 6.2, 0)), False)
sketch12.addGeometry(Part.LineSegment(V(0.78, 6.2, 0), V(1.12641, 6.4, 0)), False)
sketch12.addGeometry(Part.LineSegment(V(1.12641, 6.4, 0), V(0.78, 6.6, 0)), False)
sketch12.addGeometry(Part.LineSegment(V(0.78, 6.6, 0), V(0.38, 6.6, 0)), False)
sketch12.addConstraint(Sketcher.Constraint("Coincident", 0, 2, 1, 1))
sketch12.addConstraint(Sketcher.Constraint("Coincident", 1, 2, 2, 1))
sketch12.addConstraint(Sketcher.Constraint("Coincident", 2, 2, 3, 1))
sketch12.addConstraint(Sketcher.Constraint("Coincident", 3, 2, 4, 1))
sketch12.addConstraint(Sketcher.Constraint("Coincident", 4, 2, 0, 1))
sketch12.addConstraint(Sketcher.Constraint("Vertical", 0))
sketch12.addConstraint(Sketcher.Constraint("Horizontal", 1))
sketch12.addConstraint(Sketcher.Constraint("Horizontal", 4))
sketch12.addConstraint(Sketcher.Constraint("Vertical", 1, 2, 3, 2))
sketch12.addConstraint(Sketcher.Constraint("Equal", 4, 0))
sketch12.addConstraint(Sketcher.Constraint("Equal", 2, 3))
sketch12.addConstraint(Sketcher.Constraint("Angle", 2, Q("30 deg")))
sketch12.addConstraint(Sketcher.Constraint("DistanceX", 1, 1, 1, 2, Q("0.4 mm")))
sketch12.addConstraint(Sketcher.Constraint("DistanceY", -1, 1, 0, 2, Q("6.2 mm")))
sketch12.addConstraint(Sketcher.Constraint("DistanceX", -1, 1, 0, 2, Q("0.38 mm")))
groove10 = doc.addObject("PartDesign::Groove", "Groove009")
body.addObject(groove10)
groove10.Profile = sketch12
groove10.ReferenceAxis = (sketch12, ["V_Axis"])
groove10.Angle = 360

# Sketch on XY plane
sketch13 = doc.addObject("Sketcher::SketchObject", "Sketch012")
body.addObject(sketch13)
sketch13.AttachmentSupport = (doc.XY_Plane, [""])
sketch13.MapMode = "FlatFace"
sketch13.addGeometry(Part.LineSegment(V(0.38, 6.2, 0), V(0.38, 5.8, 0)), False)
sketch13.addGeometry(Part.LineSegment(V(0.38, 5.8, 0), V(0.78, 5.8, 0)), False)
sketch13.addGeometry(Part.LineSegment(V(0.78, 5.8, 0), V(1.12641, 6, 0)), False)
sketch13.addGeometry(Part.LineSegment(V(1.12641, 6, 0), V(0.78, 6.2, 0)), False)
sketch13.addGeometry(Part.LineSegment(V(0.78, 6.2, 0), V(0.38, 6.2, 0)), False)
sketch13.addConstraint(Sketcher.Constraint("Coincident", 0, 2, 1, 1))
sketch13.addConstraint(Sketcher.Constraint("Coincident", 1, 2, 2, 1))
sketch13.addConstraint(Sketcher.Constraint("Coincident", 2, 2, 3, 1))
sketch13.addConstraint(Sketcher.Constraint("Coincident", 3, 2, 4, 1))
sketch13.addConstraint(Sketcher.Constraint("Coincident", 4, 2, 0, 1))
sketch13.addConstraint(Sketcher.Constraint("Vertical", 0))
sketch13.addConstraint(Sketcher.Constraint("Horizontal", 1))
sketch13.addConstraint(Sketcher.Constraint("Horizontal", 4))
sketch13.addConstraint(Sketcher.Constraint("Vertical", 1, 2, 3, 2))
sketch13.addConstraint(Sketcher.Constraint("Equal", 4, 0))
sketch13.addConstraint(Sketcher.Constraint("Equal", 2, 3))
sketch13.addConstraint(Sketcher.Constraint("Angle", 2, Q("30 deg")))
sketch13.addConstraint(Sketcher.Constraint("DistanceX", 1, 1, 1, 2, Q("0.4 mm")))
sketch13.addConstraint(Sketcher.Constraint("DistanceY", -1, 1, 2, 2, Q("6 mm")))
sketch13.addConstraint(Sketcher.Constraint("DistanceX", -1, 1, 0, 2, Q("0.38 mm")))
groove11 = doc.addObject("PartDesign::Groove", "Groove010")
body.addObject(groove11)
groove11.Profile = sketch13
groove11.ReferenceAxis = (sketch13, ["V_Axis"])
groove11.Angle = 360

# Sketch on XY plane
sketch14 = doc.addObject("Sketcher::SketchObject", "Sketch013")
body.addObject(sketch14)
sketch14.AttachmentSupport = (doc.XY_Plane, [""])
sketch14.MapMode = "FlatFace"
sketch14.addGeometry(Part.LineSegment(V(0.38, 5.8, 0), V(0.38, 5.4, 0)), False)
sketch14.addGeometry(Part.LineSegment(V(0.38, 5.4, 0), V(0.78, 5.4, 0)), False)
sketch14.addGeometry(Part.LineSegment(V(0.78, 5.4, 0), V(1.12641, 5.6, 0)), False)
sketch14.addGeometry(Part.LineSegment(V(1.12641, 5.6, 0), V(0.78, 5.8, 0)), False)
sketch14.addGeometry(Part.LineSegment(V(0.78, 5.8, 0), V(0.38, 5.8, 0)), False)
sketch14.addConstraint(Sketcher.Constraint("Coincident", 0, 2, 1, 1))
sketch14.addConstraint(Sketcher.Constraint("Coincident", 1, 2, 2, 1))
sketch14.addConstraint(Sketcher.Constraint("Coincident", 2, 2, 3, 1))
sketch14.addConstraint(Sketcher.Constraint("Coincident", 3, 2, 4, 1))
sketch14.addConstraint(Sketcher.Constraint("Coincident", 4, 2, 0, 1))
sketch14.addConstraint(Sketcher.Constraint("Vertical", 0))
sketch14.addConstraint(Sketcher.Constraint("Horizontal", 1))
sketch14.addConstraint(Sketcher.Constraint("Horizontal", 4))
sketch14.addConstraint(Sketcher.Constraint("Vertical", 1, 2, 3, 2))
sketch14.addConstraint(Sketcher.Constraint("Equal", 4, 0))
sketch14.addConstraint(Sketcher.Constraint("Equal", 2, 3))
sketch14.addConstraint(Sketcher.Constraint("Angle", 2, Q("30 deg")))
sketch14.addConstraint(Sketcher.Constraint("DistanceX", 1, 1, 1, 2, Q("0.4 mm")))
sketch14.addConstraint(Sketcher.Constraint("DistanceY", -1, 1, 0, 2, Q("5.4 mm")))
sketch14.addConstraint(Sketcher.Constraint("DistanceX", -1, 1, 0, 2, Q("0.38 mm")))
groove12 = doc.addObject("PartDesign::Groove", "Groove011")
body.addObject(groove12)
groove12.Profile = sketch14
groove12.ReferenceAxis = (sketch14, ["V_Axis"])
groove12.Angle = 360

# Sketch on XY plane
sketch15 = doc.addObject("Sketcher::SketchObject", "Sketch014")
body.addObject(sketch15)
sketch15.AttachmentSupport = (doc.XY_Plane, [""])
sketch15.MapMode = "FlatFace"
sketch15.addGeometry(Part.LineSegment(V(0.38, 5.4, 0), V(0.38, 5, 0)), False)
sketch15.addGeometry(Part.LineSegment(V(0.38, 5, 0), V(0.78, 5, 0)), False)
sketch15.addGeometry(Part.LineSegment(V(0.78, 5, 0), V(1.12641, 5.2, 0)), False)
sketch15.addGeometry(Part.LineSegment(V(1.12641, 5.2, 0), V(0.78, 5.4, 0)), False)
sketch15.addGeometry(Part.LineSegment(V(0.78, 5.4, 0), V(0.38, 5.4, 0)), False)
sketch15.addConstraint(Sketcher.Constraint("Coincident", 0, 2, 1, 1))
sketch15.addConstraint(Sketcher.Constraint("Coincident", 1, 2, 2, 1))
sketch15.addConstraint(Sketcher.Constraint("Coincident", 2, 2, 3, 1))
sketch15.addConstraint(Sketcher.Constraint("Coincident", 3, 2, 4, 1))
sketch15.addConstraint(Sketcher.Constraint("Coincident", 4, 2, 0, 1))
sketch15.addConstraint(Sketcher.Constraint("Vertical", 0))
sketch15.addConstraint(Sketcher.Constraint("Horizontal", 1))
sketch15.addConstraint(Sketcher.Constraint("Horizontal", 4))
sketch15.addConstraint(Sketcher.Constraint("Vertical", 1, 2, 3, 2))
sketch15.addConstraint(Sketcher.Constraint("Equal", 4, 0))
sketch15.addConstraint(Sketcher.Constraint("Equal", 2, 3))
sketch15.addConstraint(Sketcher.Constraint("Angle", 2, Q("30 deg")))
sketch15.addConstraint(Sketcher.Constraint("DistanceX", 1, 1, 1, 2, Q("0.4 mm")))
sketch15.addConstraint(Sketcher.Constraint("DistanceY", -1, 1, 0, 2, Q("5 mm")))
sketch15.addConstraint(Sketcher.Constraint("DistanceX", -1, 1, 0, 2, Q("0.38 mm")))
groove13 = doc.addObject("PartDesign::Groove", "Groove012")
body.addObject(groove13)
groove13.Profile = sketch15
groove13.ReferenceAxis = (sketch15, ["V_Axis"])
groove13.Angle = 360

# Sketch on XY plane
sketch16 = doc.addObject("Sketcher::SketchObject", "Sketch015")
body.addObject(sketch16)
sketch16.AttachmentSupport = (doc.XY_Plane, [""])
sketch16.MapMode = "FlatFace"
sketch16.addGeometry(Part.LineSegment(V(0.38, 5, 0), V(0.38, 4.6, 0)), False)
sketch16.addGeometry(Part.LineSegment(V(0.38, 4.6, 0), V(0.78, 4.6, 0)), False)
sketch16.addGeometry(Part.LineSegment(V(0.78, 4.6, 0), V(1.12641, 4.8, 0)), False)
sketch16.addGeometry(Part.LineSegment(V(1.12641, 4.8, 0), V(0.78, 5, 0)), False)
sketch16.addGeometry(Part.LineSegment(V(0.78, 5, 0), V(0.38, 5, 0)), False)
sketch16.addConstraint(Sketcher.Constraint("Coincident", 0, 2, 1, 1))
sketch16.addConstraint(Sketcher.Constraint("Coincident", 1, 2, 2, 1))
sketch16.addConstraint(Sketcher.Constraint("Coincident", 2, 2, 3, 1))
sketch16.addConstraint(Sketcher.Constraint("Coincident", 3, 2, 4, 1))
sketch16.addConstraint(Sketcher.Constraint("Coincident", 4, 2, 0, 1))
sketch16.addConstraint(Sketcher.Constraint("Vertical", 0))
sketch16.addConstraint(Sketcher.Constraint("Horizontal", 1))
sketch16.addConstraint(Sketcher.Constraint("Horizontal", 4))
sketch16.addConstraint(Sketcher.Constraint("Vertical", 1, 2, 3, 2))
sketch16.addConstraint(Sketcher.Constraint("Equal", 4, 0))
sketch16.addConstraint(Sketcher.Constraint("Equal", 2, 3))
sketch16.addConstraint(Sketcher.Constraint("Angle", 2, Q("30 deg")))
sketch16.addConstraint(Sketcher.Constraint("DistanceX", 1, 1, 1, 2, Q("0.4 mm")))
sketch16.addConstraint(Sketcher.Constraint("DistanceY", -1, 1, 3, 2, Q("5 mm")))
sketch16.addConstraint(Sketcher.Constraint("DistanceX", -1, 1, 0, 2, Q("0.38 mm")))
groove14 = doc.addObject("PartDesign::Groove", "Groove013")
body.addObject(groove14)
groove14.Profile = sketch16
groove14.ReferenceAxis = (sketch16, ["V_Axis"])
groove14.Angle = 360

# Sketch on XY plane
sketch17 = doc.addObject("Sketcher::SketchObject", "Sketch016")
body.addObject(sketch17)
sketch17.AttachmentSupport = (doc.XY_Plane, [""])
sketch17.MapMode = "FlatFace"
sketch17.addGeometry(Part.LineSegment(V(0.38, 4.6, 0), V(0.38, 4.2, 0)), False)
sketch17.addGeometry(Part.LineSegment(V(0.38, 4.2, 0), V(0.78, 4.2, 0)), False)
sketch17.addGeometry(Part.LineSegment(V(0.78, 4.2, 0), V(1.12641, 4.4, 0)), False)
sketch17.addGeometry(Part.LineSegment(V(1.12641, 4.4, 0), V(0.78, 4.6, 0)), False)
sketch17.addGeometry(Part.LineSegment(V(0.78, 4.6, 0), V(0.38, 4.6, 0)), False)
sketch17.addConstraint(Sketcher.Constraint("Coincident", 0, 2, 1, 1))
sketch17.addConstraint(Sketcher.Constraint("Coincident", 1, 2, 2, 1))
sketch17.addConstraint(Sketcher.Constraint("Coincident", 2, 2, 3, 1))
sketch17.addConstraint(Sketcher.Constraint("Coincident", 3, 2, 4, 1))
sketch17.addConstraint(Sketcher.Constraint("Coincident", 4, 2, 0, 1))
sketch17.addConstraint(Sketcher.Constraint("Vertical", 0))
sketch17.addConstraint(Sketcher.Constraint("Horizontal", 1))
sketch17.addConstraint(Sketcher.Constraint("Horizontal", 4))
sketch17.addConstraint(Sketcher.Constraint("Vertical", 1, 2, 3, 2))
sketch17.addConstraint(Sketcher.Constraint("Equal", 4, 0))
sketch17.addConstraint(Sketcher.Constraint("Equal", 2, 3))
sketch17.addConstraint(Sketcher.Constraint("Angle", 2, Q("30 deg")))
sketch17.addConstraint(Sketcher.Constraint("DistanceX", 1, 1, 1, 2, Q("0.4 mm")))
sketch17.addConstraint(Sketcher.Constraint("DistanceY", -1, 1, 0, 2, Q("4.2 mm")))
sketch17.addConstraint(Sketcher.Constraint("DistanceX", -1, 1, 0, 2, Q("0.38 mm")))
groove15 = doc.addObject("PartDesign::Groove", "Groove014")
body.addObject(groove15)
groove15.Profile = sketch17
groove15.ReferenceAxis = (sketch17, ["V_Axis"])
groove15.Angle = 360

doc.recompute()
